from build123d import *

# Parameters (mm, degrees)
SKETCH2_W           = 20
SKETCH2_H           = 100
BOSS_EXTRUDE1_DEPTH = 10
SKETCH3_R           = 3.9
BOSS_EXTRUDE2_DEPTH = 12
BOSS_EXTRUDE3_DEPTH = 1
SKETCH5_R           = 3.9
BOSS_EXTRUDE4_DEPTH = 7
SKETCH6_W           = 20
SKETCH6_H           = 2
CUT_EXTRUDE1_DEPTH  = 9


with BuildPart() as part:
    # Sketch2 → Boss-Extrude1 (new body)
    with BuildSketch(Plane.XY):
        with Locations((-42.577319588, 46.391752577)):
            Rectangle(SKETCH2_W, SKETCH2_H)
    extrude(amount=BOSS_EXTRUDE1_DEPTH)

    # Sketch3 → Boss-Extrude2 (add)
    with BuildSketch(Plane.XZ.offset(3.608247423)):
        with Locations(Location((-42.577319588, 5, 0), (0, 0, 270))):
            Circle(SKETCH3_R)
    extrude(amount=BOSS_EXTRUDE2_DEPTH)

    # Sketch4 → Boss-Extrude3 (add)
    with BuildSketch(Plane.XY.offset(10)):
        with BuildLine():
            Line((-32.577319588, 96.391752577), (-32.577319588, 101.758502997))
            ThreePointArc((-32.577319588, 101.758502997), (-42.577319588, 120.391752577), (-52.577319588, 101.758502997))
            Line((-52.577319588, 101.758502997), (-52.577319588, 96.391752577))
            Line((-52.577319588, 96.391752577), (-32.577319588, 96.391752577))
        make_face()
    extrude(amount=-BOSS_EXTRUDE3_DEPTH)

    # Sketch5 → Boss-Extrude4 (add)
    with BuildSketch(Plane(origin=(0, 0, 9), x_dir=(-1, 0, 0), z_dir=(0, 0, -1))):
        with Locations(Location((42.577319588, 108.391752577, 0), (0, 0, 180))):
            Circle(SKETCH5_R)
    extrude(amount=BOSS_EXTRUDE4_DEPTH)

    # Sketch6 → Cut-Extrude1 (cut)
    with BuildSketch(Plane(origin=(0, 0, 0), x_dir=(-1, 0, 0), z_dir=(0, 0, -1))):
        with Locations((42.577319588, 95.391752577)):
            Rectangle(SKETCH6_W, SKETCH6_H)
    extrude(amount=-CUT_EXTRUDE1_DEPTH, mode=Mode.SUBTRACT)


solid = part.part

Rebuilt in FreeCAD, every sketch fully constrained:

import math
import FreeCAD as App
import Part
import Sketcher
from FreeCAD import Vector


def add_polygon(sketch, points):
    """Adds a closed chain of lines whose ends are joined by coincident constraints."""
    first, n = sketch.GeometryCount, len(points)
    for a, b in zip(points, points[1:] + points[:1]):
        sketch.addGeometry(Part.LineSegment(App.Vector(*a, 0), App.Vector(*b, 0)), False)
    for i in range(n):
        sketch.addConstraint(Sketcher.Constraint("Coincident", first + i, 2, first + (i + 1) % n, 1))

doc = App.newDocument("Part")
body = doc.addObject("PartDesign::Body", "Body")

# Sketch on XY plane
sketch1 = doc.addObject("Sketcher::SketchObject", "Sketch")
body.addObject(sketch1)
sketch1.AttachmentSupport = (doc.XY_Plane, [""])
sketch1.MapMode = "FlatFace"
add_polygon(sketch1, [(-52.57732, 96.391753), (-52.57732, -3.608247), (-32.57732, -3.608247), (-32.57732, 96.391753)])  # lines 0-3
sketch1.addConstraint([
    Sketcher.Constraint("Vertical", 0),
    Sketcher.Constraint("Horizontal", 1),
    Sketcher.Constraint("Vertical", 2),
    Sketcher.Constraint("Horizontal", 3),
    Sketcher.Constraint("DistanceX", 1, 1, 1, 2, 20.0),
    Sketcher.Constraint("DistanceY", 0, 2, 0, 1, 100.0),
    Sketcher.Constraint("DistanceX", 0, 2, -1, 1, 52.57732),
    Sketcher.Constraint("DistanceY", 0, 2, -1, 1, 3.608247),
])
pad1 = doc.addObject("PartDesign::Pad", "Pad")
body.addObject(pad1)
pad1.Profile = sketch1
pad1.Length = 10

# Sketch on XZ plane
sketch2 = doc.addObject("Sketcher::SketchObject", "Sketch001")
body.addObject(sketch2)
sketch2.AttachmentSupport = (doc.XZ_Plane, [""])
sketch2.MapMode = "FlatFace"
sketch2.AttachmentOffset = App.Placement(Vector(0, 0, 3.608247), App.Rotation())
sketch2.addGeometry(Part.Circle(Vector(-42.57732, 5, 0), Vector(0, 0, 1), 3.9), False)
sketch2.addConstraint([
    Sketcher.Constraint("Diameter", 0, 7.8),
    Sketcher.Constraint("DistanceY", -1, 1, 0, 3, 5.0),
    Sketcher.Constraint("DistanceX", 0, 3, -1, 1, 42.57732),
])
pad2 = doc.addObject("PartDesign::Pad", "Pad001")
body.addObject(pad2)
pad2.Profile = sketch2
pad2.Length = 12

# Sketch on XY plane
sketch3 = doc.addObject("Sketcher::SketchObject", "Sketch002")
body.addObject(sketch3)
sketch3.AttachmentSupport = (doc.XY_Plane, [""])
sketch3.MapMode = "FlatFace"
sketch3.AttachmentOffset = App.Placement(Vector(0, 0, 10), App.Rotation())
sketch3.addGeometry([
    Part.LineSegment(Vector(-32.57732, 96.391753, 0), Vector(-32.57732, 101.758503, 0)),
    Part.ArcOfCircle(Part.Circle(Vector(-42.57732, 108.391753, 0), Vector(0, 0, 1), 12), math.radians(-33.55731), math.radians(213.55731)),
    Part.LineSegment(Vector(-52.57732, 101.758503, 0), Vector(-52.57732, 96.391753, 0)),
    Part.LineSegment(Vector(-52.57732, 96.391753, 0), Vector(-32.57732, 96.391753, 0)),
], False)
sketch3.addConstraint([
    Sketcher.Constraint("Coincident", 0, 2, 1, 1),
    Sketcher.Constraint("Coincident", 1, 2, 2, 1),
    Sketcher.Constraint("Coincident", 2, 2, 3, 1),
    Sketcher.Constraint("Coincident", 3, 2, 0, 1),
    Sketcher.Constraint("Vertical", 0),
    Sketcher.Constraint("Vertical", 2),
    Sketcher.Constraint("Horizontal", 3),
    Sketcher.Constraint("Horizontal", 0, 2, 1, 2),
    Sketcher.Constraint("Radius", 1, 12.0),
    Sketcher.Constraint("DistanceX", 3, 1, 3, 2, 20.0),
    Sketcher.Constraint("DistanceY", 2, 2, 1, 3, 12.0),
    Sketcher.Constraint("DistanceX", 1, 3, -1, 1, 42.57732),
    Sketcher.Constraint("DistanceY", -1, 1, 1, 3, 108.391753),
])
pad3 = doc.addObject("PartDesign::Pad", "Pad002")
body.addObject(pad3)
pad3.Profile = sketch3
pad3.Length = 1
pad3.Reversed = True

# Sketch on XY plane
sketch4 = doc.addObject("Sketcher::SketchObject", "Sketch003")
body.addObject(sketch4)
sketch4.AttachmentSupport = (doc.XY_Plane, [""])
sketch4.MapMode = "FlatFace"
sketch4.AttachmentOffset = App.Placement(Vector(0, 0, 9), App.Rotation())
sketch4.addGeometry(Part.Circle(Vector(-42.57732, 108.391753, 0), Vector(0, 0, 1), 3.9), False)
sketch4.addConstraint([
    Sketcher.Constraint("Diameter", 0, 7.8),
    Sketcher.Constraint("DistanceX", 0, 3, -1, 1, 42.57732),
    Sketcher.Constraint("DistanceY", -1, 1, 0, 3, 108.391753),
])
pad4 = doc.addObject("PartDesign::Pad", "Pad003")
body.addObject(pad4)
pad4.Profile = sketch4
pad4.Length = 7
pad4.Reversed = True

# Sketch on XY plane
sketch5 = doc.addObject("Sketcher::SketchObject", "Sketch004")
body.addObject(sketch5)
sketch5.AttachmentSupport = (doc.XY_Plane, [""])
sketch5.MapMode = "FlatFace"
add_polygon(sketch5, [(-32.57732, 96.391753), (-32.57732, 94.391753), (-52.57732, 94.391753), (-52.57732, 96.391753)])  # lines 0-3
sketch5.addConstraint([
    Sketcher.Constraint("Vertical", 0),
    Sketcher.Constraint("Horizontal", 1),
    Sketcher.Constraint("Vertical", 2),
    Sketcher.Constraint("Horizontal", 3),
    Sketcher.Constraint("DistanceX", 1, 2, 1, 1, 20.0),
    Sketcher.Constraint("DistanceY", 0, 2, 0, 1, 2.0),
    Sketcher.Constraint("DistanceX", 0, 2, -1, 1, 32.57732),
    Sketcher.Constraint("DistanceY", -1, 1, 0, 2, 94.391753),
])
pocket1 = doc.addObject("PartDesign::Pocket", "Pocket")
body.addObject(pocket1)
pocket1.Profile = sketch5
pocket1.Length = 9
pocket1.Reversed = True

doc.recompute()
